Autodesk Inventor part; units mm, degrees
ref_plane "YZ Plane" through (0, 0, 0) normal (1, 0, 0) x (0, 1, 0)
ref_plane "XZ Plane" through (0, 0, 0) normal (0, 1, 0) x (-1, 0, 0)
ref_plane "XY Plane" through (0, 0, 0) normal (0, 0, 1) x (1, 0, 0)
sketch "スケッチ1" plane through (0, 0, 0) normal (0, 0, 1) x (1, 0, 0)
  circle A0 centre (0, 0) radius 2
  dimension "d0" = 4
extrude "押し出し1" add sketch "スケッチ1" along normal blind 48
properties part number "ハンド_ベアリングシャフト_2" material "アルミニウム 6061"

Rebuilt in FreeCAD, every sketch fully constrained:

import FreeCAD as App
import Part
import Sketcher
Q = App.Units.Quantity

doc = App.newDocument("Part")
body = doc.addObject("PartDesign::Body", "Body")

sketch1 = body.newObject("Sketcher::SketchObject", "Sketch")
sketch1.AttachmentSupport = (doc.getObject("XY_Plane"), [""])
sketch1.MapMode = "FlatFace"
sketch1.addGeometry(Part.Circle(App.Vector(0, 0, 0), App.Vector(0, 0, 1), 2), False)
sketch1.addConstraint([
    Sketcher.Constraint("Coincident", 0, 3, -1, 1),
    Sketcher.Constraint("Diameter", 0, Q("4 mm")),
])
pad1 = body.newObject("PartDesign::Pad", "Pad")
pad1.Profile = sketch1
pad1.Length = 48

doc.recompute()
